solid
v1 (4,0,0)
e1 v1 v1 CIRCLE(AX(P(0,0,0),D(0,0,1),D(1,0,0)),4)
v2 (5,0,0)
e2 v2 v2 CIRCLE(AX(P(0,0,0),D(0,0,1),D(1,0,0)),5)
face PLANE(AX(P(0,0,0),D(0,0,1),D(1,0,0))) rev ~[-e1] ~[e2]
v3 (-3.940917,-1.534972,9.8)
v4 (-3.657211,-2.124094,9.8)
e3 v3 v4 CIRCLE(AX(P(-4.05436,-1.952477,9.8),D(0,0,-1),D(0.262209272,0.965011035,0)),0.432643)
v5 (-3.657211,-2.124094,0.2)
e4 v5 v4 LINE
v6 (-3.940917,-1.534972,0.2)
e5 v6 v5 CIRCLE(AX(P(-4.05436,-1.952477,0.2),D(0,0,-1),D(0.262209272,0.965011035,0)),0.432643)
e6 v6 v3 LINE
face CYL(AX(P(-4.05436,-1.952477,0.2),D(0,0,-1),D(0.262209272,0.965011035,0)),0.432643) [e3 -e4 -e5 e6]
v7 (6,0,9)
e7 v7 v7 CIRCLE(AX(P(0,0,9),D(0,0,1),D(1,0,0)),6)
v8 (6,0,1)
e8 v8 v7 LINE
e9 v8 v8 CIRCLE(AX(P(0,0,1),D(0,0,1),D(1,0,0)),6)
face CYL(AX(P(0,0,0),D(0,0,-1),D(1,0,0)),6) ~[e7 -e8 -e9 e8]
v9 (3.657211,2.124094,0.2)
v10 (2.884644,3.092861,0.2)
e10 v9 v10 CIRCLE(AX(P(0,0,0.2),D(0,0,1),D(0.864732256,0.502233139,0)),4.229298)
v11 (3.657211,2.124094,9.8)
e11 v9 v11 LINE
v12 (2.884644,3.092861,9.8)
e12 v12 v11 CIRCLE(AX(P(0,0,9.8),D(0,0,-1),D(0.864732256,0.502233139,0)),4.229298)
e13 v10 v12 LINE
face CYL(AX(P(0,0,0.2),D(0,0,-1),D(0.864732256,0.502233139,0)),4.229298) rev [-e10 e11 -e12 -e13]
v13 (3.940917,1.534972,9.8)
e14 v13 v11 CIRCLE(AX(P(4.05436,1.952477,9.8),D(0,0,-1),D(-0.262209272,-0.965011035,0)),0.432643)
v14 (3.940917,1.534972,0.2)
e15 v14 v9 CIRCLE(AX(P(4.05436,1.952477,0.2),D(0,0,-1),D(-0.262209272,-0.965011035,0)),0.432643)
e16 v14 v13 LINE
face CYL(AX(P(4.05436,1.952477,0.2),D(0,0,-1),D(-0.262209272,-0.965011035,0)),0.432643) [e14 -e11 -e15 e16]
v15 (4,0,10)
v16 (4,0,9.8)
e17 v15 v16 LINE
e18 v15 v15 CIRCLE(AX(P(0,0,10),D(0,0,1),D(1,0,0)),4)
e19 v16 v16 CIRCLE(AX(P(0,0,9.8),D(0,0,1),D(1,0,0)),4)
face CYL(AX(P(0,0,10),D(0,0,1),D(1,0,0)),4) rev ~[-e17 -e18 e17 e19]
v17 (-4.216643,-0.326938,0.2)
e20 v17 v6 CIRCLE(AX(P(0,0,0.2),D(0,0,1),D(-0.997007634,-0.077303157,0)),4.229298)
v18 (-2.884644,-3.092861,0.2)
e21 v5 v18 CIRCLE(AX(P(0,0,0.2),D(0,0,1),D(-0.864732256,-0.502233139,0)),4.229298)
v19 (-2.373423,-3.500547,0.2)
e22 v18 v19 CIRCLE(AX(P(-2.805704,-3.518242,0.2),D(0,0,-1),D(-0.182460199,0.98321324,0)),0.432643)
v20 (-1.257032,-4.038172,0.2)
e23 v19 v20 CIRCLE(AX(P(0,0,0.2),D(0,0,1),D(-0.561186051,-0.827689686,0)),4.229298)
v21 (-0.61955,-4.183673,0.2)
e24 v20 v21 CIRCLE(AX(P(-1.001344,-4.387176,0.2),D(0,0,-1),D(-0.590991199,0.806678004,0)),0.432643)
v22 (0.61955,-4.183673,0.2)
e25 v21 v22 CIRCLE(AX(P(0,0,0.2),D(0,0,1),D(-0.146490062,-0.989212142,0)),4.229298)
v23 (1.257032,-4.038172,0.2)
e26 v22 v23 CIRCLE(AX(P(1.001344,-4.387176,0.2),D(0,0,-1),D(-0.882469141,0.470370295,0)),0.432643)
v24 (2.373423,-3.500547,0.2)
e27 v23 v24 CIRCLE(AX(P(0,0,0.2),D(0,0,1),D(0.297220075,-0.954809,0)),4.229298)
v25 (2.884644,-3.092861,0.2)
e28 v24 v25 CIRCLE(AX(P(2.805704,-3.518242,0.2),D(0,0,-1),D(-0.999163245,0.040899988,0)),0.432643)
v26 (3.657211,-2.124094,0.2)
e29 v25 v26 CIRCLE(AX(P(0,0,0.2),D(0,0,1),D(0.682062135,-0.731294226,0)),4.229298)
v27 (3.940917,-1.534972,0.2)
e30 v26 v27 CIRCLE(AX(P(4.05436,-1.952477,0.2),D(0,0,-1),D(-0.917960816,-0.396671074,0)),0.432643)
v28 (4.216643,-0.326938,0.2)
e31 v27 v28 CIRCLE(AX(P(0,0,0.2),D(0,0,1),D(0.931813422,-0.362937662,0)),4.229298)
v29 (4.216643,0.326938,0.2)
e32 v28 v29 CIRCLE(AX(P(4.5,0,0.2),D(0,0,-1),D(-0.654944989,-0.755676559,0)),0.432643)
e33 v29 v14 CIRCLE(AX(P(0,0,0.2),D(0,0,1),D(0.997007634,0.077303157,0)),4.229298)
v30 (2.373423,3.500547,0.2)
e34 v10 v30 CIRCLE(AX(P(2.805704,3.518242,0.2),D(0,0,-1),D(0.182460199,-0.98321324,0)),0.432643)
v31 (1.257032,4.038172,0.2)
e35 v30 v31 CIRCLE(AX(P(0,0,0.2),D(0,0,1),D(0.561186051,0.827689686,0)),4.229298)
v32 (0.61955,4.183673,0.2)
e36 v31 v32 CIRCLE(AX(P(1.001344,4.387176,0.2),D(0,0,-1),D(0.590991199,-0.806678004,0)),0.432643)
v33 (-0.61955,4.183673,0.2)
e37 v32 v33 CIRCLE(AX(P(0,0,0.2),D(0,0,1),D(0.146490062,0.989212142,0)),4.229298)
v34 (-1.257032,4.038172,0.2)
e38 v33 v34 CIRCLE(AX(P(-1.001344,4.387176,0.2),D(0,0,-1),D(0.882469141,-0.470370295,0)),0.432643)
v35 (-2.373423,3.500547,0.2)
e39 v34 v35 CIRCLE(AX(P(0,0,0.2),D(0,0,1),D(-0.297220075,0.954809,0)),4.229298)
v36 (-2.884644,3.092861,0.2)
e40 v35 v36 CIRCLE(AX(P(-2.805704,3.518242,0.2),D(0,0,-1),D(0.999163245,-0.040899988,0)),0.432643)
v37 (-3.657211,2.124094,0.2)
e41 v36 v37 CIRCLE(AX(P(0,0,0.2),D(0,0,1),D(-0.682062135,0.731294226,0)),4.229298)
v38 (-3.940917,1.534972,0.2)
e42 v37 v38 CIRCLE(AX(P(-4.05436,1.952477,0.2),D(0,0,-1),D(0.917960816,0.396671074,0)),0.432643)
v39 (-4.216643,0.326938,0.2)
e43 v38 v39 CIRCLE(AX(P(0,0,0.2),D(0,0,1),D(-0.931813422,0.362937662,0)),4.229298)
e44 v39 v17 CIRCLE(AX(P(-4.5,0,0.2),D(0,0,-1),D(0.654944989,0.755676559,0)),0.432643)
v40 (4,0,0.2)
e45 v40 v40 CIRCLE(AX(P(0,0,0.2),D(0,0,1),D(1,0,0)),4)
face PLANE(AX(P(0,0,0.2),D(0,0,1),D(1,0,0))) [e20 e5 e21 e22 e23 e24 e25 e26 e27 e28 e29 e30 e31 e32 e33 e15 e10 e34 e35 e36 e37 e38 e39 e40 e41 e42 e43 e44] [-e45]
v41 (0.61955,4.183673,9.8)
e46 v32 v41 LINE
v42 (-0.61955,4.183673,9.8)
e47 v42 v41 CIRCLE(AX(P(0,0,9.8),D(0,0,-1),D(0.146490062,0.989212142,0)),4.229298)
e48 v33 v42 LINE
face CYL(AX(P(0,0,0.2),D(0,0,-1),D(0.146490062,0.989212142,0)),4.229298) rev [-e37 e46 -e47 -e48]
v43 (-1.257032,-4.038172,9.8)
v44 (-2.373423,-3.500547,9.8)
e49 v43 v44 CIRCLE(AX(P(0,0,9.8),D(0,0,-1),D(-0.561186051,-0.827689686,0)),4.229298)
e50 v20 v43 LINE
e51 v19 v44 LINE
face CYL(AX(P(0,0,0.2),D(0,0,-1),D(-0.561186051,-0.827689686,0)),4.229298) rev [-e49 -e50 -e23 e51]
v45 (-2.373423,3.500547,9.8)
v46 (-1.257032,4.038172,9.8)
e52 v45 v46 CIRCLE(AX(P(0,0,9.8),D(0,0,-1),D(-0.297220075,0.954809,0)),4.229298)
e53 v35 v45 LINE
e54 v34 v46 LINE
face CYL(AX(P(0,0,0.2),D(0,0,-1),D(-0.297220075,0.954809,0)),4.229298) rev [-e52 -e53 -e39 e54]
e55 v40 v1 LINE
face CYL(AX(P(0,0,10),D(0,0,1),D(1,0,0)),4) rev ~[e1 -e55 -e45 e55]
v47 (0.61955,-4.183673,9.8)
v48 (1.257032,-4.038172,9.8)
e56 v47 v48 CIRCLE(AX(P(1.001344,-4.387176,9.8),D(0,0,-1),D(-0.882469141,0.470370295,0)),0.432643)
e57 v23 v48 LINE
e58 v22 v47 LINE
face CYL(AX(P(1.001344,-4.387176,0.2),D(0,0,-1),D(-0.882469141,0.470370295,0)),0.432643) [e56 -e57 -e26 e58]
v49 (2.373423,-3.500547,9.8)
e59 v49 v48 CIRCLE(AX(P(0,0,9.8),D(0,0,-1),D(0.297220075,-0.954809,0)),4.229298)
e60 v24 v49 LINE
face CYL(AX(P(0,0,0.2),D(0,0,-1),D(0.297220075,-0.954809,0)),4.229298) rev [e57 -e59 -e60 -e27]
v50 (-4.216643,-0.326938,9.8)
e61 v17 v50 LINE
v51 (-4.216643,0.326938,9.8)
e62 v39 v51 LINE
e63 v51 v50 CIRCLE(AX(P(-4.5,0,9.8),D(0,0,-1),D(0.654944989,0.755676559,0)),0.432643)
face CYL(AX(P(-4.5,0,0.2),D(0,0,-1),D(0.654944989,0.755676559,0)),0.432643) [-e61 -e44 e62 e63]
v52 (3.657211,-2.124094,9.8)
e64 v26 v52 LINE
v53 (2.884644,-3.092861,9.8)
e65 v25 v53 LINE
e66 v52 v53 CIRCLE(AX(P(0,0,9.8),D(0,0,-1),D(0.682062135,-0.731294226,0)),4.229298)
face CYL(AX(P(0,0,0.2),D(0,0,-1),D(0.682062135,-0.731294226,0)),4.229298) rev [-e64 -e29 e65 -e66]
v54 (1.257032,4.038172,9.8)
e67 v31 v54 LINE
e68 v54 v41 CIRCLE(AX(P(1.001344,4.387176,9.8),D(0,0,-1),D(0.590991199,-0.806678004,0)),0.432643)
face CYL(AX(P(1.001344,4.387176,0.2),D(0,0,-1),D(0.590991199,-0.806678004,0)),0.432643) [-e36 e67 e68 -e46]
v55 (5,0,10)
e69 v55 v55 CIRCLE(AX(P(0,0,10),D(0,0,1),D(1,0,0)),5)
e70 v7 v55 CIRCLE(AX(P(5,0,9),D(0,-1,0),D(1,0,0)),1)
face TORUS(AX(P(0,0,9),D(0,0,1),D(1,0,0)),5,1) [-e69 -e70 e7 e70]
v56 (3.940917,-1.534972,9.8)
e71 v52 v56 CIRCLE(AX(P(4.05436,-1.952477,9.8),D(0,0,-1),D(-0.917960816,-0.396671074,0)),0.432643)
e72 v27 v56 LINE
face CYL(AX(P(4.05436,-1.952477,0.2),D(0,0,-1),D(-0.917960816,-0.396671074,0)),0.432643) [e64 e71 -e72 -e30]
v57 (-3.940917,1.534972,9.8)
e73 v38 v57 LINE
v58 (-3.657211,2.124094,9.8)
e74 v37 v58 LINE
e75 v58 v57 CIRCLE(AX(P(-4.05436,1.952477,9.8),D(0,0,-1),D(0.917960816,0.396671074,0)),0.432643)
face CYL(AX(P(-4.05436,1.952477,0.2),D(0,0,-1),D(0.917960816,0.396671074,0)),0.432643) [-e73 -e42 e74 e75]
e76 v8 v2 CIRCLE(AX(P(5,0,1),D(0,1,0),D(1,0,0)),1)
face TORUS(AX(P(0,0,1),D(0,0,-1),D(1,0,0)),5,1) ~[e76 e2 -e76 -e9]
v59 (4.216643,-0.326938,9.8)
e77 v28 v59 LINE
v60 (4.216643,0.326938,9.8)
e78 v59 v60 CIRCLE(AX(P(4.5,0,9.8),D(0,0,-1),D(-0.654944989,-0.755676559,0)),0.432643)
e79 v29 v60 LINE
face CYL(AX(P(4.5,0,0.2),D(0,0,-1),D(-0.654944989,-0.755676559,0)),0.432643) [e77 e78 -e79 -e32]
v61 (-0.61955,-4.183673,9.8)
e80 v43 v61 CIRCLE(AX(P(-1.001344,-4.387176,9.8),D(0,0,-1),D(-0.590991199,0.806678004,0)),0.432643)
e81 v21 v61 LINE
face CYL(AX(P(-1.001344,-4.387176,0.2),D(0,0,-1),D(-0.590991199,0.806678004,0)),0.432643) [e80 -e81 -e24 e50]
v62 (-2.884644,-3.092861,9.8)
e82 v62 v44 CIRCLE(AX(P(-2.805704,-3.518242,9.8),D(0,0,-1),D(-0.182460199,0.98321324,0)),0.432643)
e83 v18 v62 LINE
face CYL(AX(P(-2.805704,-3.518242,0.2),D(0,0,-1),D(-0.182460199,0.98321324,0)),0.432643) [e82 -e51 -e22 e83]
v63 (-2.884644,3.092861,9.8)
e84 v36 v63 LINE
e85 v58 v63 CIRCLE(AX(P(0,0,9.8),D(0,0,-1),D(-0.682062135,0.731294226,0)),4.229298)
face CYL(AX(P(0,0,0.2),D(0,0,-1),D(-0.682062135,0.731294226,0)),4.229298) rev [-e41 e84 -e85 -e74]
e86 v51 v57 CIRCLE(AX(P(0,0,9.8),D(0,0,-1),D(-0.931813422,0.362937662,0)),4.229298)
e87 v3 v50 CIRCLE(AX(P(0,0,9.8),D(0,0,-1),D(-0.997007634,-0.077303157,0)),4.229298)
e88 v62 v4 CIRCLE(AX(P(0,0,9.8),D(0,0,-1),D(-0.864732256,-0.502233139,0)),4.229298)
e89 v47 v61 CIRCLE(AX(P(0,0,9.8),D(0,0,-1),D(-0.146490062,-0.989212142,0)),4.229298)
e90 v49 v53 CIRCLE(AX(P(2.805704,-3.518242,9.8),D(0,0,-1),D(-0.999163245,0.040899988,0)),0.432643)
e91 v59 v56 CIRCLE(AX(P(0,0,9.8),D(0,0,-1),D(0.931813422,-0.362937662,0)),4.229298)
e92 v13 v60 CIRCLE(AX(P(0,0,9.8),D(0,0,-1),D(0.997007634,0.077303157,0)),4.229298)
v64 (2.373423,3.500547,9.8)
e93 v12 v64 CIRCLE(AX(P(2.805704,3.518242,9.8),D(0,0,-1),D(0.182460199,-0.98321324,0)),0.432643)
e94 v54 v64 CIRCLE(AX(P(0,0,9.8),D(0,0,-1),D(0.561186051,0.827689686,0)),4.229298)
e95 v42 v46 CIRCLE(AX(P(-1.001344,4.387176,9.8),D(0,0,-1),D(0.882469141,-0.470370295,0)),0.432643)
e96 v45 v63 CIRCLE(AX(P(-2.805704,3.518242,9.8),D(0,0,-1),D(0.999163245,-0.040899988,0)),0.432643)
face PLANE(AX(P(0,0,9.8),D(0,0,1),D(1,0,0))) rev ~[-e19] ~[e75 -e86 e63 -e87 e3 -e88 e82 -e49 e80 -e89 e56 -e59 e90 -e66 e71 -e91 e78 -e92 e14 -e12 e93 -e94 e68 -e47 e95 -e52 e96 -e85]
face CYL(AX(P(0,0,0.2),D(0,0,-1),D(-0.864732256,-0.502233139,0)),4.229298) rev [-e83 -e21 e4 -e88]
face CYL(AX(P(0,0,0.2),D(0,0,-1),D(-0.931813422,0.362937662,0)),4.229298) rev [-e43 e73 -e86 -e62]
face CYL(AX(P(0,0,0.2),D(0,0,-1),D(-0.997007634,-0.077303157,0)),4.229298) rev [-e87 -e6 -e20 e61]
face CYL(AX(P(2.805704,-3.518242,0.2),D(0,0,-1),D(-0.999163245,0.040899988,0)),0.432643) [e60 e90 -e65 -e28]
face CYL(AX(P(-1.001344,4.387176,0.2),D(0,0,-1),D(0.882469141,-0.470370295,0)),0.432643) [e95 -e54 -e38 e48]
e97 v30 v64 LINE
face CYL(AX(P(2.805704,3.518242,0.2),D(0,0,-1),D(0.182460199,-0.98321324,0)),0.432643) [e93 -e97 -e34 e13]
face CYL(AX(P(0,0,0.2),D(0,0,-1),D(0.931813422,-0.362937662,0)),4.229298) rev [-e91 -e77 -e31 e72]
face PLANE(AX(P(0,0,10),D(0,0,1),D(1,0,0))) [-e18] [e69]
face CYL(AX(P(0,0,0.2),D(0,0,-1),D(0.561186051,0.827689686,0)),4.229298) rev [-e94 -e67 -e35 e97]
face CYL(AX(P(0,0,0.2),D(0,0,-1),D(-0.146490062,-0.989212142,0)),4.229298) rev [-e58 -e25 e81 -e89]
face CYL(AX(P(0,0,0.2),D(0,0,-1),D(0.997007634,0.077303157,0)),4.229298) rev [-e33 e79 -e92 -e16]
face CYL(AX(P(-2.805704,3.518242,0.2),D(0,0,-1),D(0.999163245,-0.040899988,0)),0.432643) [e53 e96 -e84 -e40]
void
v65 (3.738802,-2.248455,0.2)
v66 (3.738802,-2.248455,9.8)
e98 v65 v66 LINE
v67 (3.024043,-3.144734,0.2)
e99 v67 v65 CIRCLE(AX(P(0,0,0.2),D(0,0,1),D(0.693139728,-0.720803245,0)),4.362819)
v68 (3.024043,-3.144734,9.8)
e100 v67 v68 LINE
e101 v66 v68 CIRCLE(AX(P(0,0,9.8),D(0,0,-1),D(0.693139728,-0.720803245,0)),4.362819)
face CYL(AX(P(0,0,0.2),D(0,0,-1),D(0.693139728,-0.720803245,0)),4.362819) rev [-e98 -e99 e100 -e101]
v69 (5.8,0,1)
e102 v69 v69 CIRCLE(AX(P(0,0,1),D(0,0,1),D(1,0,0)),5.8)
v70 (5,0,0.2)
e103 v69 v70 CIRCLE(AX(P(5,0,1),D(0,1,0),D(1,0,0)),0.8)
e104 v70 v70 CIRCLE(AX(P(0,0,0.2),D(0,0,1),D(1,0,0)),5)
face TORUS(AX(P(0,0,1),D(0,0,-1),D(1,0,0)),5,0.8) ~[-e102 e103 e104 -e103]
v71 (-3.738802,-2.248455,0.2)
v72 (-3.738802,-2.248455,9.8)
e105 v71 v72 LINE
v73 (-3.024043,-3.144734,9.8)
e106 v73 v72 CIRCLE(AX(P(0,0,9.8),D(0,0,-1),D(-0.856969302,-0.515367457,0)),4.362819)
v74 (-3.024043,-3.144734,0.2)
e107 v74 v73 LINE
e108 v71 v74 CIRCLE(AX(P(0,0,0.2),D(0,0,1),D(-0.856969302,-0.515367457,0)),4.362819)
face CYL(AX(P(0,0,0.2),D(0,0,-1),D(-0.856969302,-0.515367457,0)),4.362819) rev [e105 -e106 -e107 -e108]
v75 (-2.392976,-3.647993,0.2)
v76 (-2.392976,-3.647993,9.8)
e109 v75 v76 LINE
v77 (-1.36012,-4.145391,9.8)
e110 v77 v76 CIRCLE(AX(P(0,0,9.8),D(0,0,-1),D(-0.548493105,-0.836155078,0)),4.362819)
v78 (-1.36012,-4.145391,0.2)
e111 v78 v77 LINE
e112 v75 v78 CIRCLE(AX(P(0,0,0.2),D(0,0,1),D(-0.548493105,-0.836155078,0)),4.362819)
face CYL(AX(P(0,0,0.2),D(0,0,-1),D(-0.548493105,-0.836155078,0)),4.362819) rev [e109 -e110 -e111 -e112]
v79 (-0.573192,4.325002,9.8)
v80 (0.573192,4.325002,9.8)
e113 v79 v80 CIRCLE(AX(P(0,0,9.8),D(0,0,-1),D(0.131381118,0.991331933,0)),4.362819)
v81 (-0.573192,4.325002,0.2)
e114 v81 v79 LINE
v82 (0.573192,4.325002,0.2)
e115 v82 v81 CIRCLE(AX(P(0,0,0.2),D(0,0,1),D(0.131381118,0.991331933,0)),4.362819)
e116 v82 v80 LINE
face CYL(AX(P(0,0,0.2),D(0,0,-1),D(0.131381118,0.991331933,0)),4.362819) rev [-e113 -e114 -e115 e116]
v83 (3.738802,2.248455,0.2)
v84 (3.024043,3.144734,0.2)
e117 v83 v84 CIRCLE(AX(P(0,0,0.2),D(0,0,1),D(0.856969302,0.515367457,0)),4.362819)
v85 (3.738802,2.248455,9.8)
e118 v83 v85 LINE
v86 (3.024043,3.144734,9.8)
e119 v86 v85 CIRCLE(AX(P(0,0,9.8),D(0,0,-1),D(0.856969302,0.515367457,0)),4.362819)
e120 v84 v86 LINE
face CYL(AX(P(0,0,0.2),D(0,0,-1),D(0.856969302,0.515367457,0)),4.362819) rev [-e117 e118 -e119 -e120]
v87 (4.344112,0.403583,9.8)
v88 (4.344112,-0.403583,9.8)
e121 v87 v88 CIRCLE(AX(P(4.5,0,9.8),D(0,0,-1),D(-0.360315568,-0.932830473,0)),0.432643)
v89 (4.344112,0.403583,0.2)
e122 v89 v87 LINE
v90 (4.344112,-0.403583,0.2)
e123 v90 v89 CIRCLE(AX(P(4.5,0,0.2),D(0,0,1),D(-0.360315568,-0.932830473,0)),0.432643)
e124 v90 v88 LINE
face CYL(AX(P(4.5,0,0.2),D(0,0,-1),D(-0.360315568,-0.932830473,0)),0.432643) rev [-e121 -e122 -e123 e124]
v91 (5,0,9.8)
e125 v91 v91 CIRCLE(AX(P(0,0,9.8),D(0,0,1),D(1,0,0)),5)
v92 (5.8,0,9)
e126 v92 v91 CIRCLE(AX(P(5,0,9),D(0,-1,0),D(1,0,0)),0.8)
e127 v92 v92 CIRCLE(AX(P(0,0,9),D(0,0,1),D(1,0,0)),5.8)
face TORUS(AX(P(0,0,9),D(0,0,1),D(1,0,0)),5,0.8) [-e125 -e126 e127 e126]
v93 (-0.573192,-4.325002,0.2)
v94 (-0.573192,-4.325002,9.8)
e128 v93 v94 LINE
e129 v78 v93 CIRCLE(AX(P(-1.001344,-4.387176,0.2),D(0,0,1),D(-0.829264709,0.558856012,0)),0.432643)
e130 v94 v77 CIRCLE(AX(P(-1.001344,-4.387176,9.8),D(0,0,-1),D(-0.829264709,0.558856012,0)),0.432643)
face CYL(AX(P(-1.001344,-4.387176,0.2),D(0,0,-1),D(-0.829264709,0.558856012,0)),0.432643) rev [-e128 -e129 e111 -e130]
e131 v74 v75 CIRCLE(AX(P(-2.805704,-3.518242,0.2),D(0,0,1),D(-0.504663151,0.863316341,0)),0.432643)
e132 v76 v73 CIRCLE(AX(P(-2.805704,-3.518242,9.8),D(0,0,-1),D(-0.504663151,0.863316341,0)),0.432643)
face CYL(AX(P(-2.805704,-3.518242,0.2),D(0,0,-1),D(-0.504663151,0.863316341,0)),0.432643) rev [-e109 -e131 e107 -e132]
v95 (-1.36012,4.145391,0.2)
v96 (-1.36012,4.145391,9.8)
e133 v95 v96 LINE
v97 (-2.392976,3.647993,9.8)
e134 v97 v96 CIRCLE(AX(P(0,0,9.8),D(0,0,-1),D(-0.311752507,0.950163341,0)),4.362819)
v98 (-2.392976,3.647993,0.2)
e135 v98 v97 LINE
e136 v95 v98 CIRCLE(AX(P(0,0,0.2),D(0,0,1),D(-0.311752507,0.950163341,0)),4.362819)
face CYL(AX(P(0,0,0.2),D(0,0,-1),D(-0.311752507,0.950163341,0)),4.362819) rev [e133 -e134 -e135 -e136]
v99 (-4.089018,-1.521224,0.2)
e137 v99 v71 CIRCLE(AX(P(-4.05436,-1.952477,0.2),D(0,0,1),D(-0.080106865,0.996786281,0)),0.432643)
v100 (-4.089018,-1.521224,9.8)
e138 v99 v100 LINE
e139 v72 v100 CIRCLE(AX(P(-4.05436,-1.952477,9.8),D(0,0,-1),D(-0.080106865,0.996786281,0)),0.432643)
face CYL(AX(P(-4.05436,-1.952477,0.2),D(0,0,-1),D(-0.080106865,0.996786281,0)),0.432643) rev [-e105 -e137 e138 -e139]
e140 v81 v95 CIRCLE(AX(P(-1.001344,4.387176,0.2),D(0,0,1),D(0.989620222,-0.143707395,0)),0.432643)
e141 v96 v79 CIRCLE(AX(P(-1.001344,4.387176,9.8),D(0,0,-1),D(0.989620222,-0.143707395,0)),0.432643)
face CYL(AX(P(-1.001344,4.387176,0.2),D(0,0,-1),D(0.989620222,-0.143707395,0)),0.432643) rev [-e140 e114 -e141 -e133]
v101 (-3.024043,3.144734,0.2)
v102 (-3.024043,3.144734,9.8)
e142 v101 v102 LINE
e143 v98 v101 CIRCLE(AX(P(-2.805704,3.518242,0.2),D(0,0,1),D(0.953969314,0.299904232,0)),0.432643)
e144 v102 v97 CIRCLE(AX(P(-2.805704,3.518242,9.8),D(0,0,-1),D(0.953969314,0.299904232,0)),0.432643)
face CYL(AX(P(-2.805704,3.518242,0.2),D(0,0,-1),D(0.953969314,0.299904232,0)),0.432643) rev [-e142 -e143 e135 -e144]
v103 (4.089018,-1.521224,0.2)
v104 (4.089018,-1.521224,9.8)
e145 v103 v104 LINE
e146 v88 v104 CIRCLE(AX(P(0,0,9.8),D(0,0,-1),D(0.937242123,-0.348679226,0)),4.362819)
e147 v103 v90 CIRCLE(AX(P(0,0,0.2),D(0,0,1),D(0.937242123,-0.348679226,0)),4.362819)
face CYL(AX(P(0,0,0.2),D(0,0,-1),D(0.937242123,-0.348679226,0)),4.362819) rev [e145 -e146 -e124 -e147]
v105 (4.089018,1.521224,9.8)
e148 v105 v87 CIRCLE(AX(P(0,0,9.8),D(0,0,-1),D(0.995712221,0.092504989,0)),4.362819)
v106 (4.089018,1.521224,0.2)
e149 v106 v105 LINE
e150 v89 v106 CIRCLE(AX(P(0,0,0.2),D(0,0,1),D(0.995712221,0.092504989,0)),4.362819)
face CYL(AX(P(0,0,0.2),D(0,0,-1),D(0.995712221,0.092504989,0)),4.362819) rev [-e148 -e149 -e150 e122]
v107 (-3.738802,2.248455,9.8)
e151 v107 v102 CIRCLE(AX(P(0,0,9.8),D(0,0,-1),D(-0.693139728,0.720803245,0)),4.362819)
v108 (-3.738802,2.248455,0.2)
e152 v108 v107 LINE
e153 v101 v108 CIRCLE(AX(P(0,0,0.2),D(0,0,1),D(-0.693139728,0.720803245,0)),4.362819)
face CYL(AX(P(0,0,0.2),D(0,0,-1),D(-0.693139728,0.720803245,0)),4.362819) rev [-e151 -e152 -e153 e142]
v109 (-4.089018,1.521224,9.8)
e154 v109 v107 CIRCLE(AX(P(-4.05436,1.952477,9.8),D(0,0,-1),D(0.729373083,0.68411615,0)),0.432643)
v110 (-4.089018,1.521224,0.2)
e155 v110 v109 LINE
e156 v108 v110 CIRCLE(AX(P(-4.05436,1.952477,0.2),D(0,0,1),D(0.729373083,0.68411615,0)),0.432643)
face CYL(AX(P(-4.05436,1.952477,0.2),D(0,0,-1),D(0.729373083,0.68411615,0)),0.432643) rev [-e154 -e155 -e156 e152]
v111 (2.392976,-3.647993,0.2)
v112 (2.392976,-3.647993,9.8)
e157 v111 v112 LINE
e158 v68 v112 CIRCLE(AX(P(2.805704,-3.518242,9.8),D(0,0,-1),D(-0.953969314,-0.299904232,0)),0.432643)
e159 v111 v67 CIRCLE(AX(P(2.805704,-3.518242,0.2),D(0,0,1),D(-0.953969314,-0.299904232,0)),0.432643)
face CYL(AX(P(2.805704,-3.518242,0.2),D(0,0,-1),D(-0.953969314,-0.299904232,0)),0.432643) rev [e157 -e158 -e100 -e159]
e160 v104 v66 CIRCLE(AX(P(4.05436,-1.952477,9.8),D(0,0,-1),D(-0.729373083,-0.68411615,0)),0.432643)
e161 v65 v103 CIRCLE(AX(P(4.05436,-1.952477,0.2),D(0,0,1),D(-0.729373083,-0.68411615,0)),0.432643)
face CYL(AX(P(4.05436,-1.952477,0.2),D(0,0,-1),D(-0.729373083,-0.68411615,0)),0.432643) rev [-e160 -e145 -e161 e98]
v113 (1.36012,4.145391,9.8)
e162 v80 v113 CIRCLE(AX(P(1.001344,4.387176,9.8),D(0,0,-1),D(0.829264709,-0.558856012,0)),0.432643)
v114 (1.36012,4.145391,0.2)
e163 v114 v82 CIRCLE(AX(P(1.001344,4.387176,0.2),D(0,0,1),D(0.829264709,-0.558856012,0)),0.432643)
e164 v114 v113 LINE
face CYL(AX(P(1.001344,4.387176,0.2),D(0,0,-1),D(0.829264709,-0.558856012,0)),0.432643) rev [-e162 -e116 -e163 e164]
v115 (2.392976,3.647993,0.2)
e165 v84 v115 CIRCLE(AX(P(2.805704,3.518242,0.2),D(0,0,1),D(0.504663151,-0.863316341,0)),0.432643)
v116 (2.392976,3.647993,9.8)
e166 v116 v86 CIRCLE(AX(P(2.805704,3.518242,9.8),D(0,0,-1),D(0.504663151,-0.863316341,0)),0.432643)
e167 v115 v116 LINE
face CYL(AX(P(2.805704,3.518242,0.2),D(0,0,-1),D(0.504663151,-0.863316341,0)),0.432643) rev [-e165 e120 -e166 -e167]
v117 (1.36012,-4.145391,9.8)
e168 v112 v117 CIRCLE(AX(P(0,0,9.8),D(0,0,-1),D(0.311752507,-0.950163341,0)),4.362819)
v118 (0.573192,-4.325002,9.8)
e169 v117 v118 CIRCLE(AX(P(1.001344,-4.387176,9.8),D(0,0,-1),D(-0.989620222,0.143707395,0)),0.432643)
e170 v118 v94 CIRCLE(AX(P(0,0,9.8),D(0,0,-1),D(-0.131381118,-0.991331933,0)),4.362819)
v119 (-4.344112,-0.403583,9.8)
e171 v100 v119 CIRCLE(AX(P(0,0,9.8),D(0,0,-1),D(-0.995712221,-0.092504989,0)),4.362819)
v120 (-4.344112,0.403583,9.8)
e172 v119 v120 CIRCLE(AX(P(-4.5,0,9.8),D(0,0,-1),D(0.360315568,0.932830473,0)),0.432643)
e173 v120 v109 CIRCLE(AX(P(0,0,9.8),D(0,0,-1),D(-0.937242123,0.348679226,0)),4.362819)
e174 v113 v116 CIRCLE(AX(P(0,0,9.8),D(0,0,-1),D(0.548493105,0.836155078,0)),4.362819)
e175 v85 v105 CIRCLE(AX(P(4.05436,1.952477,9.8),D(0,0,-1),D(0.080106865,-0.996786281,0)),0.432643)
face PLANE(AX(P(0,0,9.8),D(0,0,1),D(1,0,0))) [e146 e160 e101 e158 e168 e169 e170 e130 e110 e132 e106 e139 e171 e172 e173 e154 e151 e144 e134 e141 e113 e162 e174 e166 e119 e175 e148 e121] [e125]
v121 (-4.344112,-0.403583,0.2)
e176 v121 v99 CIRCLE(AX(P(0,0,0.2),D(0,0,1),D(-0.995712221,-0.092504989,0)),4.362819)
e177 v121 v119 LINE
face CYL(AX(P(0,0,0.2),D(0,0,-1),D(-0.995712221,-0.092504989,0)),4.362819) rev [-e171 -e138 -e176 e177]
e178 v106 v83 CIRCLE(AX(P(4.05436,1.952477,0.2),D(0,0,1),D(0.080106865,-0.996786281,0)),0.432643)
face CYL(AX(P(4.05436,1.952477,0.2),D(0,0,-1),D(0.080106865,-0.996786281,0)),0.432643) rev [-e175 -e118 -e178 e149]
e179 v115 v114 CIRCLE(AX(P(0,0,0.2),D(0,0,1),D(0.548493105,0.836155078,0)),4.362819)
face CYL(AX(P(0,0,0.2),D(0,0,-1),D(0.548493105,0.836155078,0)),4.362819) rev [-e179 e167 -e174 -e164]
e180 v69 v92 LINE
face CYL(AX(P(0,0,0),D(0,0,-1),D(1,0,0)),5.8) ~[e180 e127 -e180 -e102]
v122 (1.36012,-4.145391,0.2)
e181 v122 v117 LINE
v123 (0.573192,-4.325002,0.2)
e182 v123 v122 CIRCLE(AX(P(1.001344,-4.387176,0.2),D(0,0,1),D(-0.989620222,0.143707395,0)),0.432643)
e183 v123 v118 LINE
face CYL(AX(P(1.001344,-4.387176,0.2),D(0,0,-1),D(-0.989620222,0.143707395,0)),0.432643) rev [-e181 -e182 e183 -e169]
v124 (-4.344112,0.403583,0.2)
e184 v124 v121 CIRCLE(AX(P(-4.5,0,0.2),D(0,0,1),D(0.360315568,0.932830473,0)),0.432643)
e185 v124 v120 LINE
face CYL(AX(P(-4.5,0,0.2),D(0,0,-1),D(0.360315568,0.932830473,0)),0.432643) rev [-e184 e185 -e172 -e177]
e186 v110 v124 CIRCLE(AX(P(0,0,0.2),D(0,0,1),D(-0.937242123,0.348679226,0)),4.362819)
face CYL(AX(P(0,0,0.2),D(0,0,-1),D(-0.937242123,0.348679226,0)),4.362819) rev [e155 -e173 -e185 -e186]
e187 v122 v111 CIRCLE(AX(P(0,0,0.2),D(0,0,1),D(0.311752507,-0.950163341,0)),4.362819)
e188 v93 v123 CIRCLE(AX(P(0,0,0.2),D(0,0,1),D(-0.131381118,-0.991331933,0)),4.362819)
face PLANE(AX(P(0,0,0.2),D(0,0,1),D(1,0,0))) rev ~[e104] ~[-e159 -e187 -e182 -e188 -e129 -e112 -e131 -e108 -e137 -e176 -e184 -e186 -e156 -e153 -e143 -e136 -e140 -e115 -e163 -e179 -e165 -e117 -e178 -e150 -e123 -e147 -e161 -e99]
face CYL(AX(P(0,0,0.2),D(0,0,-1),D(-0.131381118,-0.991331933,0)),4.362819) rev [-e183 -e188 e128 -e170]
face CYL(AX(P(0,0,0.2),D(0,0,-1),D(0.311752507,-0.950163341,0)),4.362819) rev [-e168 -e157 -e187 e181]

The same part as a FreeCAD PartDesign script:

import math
import FreeCAD as App
import Part
import Sketcher

V = App.Vector
Q = App.Units.Quantity


def edges_at(feature, points):
    """Names of the edges that pass closest to the given points."""
    edges = feature.Shape.Edges
    near = lambda p: min(range(len(edges)), key=lambda i: edges[i].distToShape(Part.Vertex(*p))[0])
    return sorted({f"Edge{near(p) + 1}" for p in points})


def faces_at(feature, points):
    """Names of the faces that lie closest to the given points."""
    faces = feature.Shape.Faces
    near = lambda p: min(range(len(faces)), key=lambda i: faces[i].distToShape(Part.Vertex(*p))[0])
    return sorted({f"Face{near(p) + 1}" for p in points})

doc = App.newDocument("Part")
params = doc.addObject("Spreadsheet::Sheet", "Params")
for row, (alias, value) in enumerate([
    ("sketch1_diameter", "12 mm"),
    ("pad1_length", "10 mm"),
    ("fillet_radius", "1 mm"),
    ("sketch2_diameter", "8 mm"),
    ("thickness_wall", "0.2 mm"),
    ("pad2_length", "9.6 mm"),
], start=1):
    params.set(f"A{row}", alias)
    params.set(f"B{row}", "=" + value)
    params.setAlias(f"B{row}", alias)

body = doc.addObject("PartDesign::Body", "Body")

sketch1 = body.newObject("Sketcher::SketchObject", "Sketch")
sketch1.AttachmentSupport = (doc.getObject("XY_Plane"), [""])
sketch1.MapMode = "FlatFace"
sketch1.addGeometry(Part.Circle(V(0, 0, 0), V(0, 0, 1), 6), False)
sketch1.addConstraint(Sketcher.Constraint("Coincident", 0, 3, -1, 1))
sketch1.addConstraint(Sketcher.Constraint("Diameter", 0, Q("12 mm")))
sketch1.setExpression("Constraints[1]", "Params.sketch1_diameter")
pad1 = body.newObject("PartDesign::Pad", "Pad")
pad1.Profile = sketch1
pad1.setExpression("Length", "Params.pad1_length")
doc.recompute()

fillet = body.newObject("PartDesign::Fillet", "Fillet")
fillet.Base = (pad1, edges_at(pad1, [(-6, 0, 0), (-6, 0, 10)]))
fillet.setExpression("Radius", "Params.fillet_radius")

sketch2 = body.newObject("Sketcher::SketchObject", "Sketch001")
sketch2.AttachmentSupport = (doc.getObject("XY_Plane"), [""])
sketch2.MapMode = "FlatFace"
sketch2.AttachmentOffset = App.Placement(V(0, 0, 10), App.Rotation())
sketch2.addGeometry(Part.Circle(V(0, 0, 0), V(0, 0, 1), 4), False)
sketch2.addConstraint(Sketcher.Constraint("Coincident", 0, 3, -1, 1))
sketch2.addConstraint(Sketcher.Constraint("Diameter", 0, Q("8 mm")))
sketch2.setExpression("Constraints[1]", "Params.sketch2_diameter")
pocket1 = body.newObject("PartDesign::Pocket", "Pocket")
pocket1.Profile = sketch2
pocket1.Type = "ThroughAll"
doc.recompute()

thickness = body.newObject("PartDesign::Thickness", "Thickness")
thickness.Base = (pocket1, faces_at(pocket1, [(-4, 0, 5)]))
thickness.setExpression("Value", "Params.thickness_wall")
thickness.Reversed = True
thickness.Join = "Intersection"

sketch3 = body.newObject("Sketcher::SketchObject", "Sketch002")
sketch3.AttachmentSupport = (doc.getObject("XY_Plane"), [""])
sketch3.MapMode = "FlatFace"
sketch3.AttachmentOffset = App.Placement(V(0, 0, 0.2), App.Rotation())
sketch3.addGeometry(Part.ArcOfCircle(Part.Circle(V(0, 0, 0), V(0, 0, 1), 4.362819), math.radians(159.593448), math.radians(174.692266)), False)
sketch3.addGeometry(Part.ArcOfCircle(Part.Circle(V(-4.5, 0, 0), V(0, 0, 1), 0.432643), math.radians(68.880423), math.radians(291.119577)), False)
sketch3.addGeometry(Part.ArcOfCircle(Part.Circle(V(0, 0, 0), V(0, 0, 1), 4.362819), math.radians(-174.692266), math.radians(-159.593448)), False)
sketch3.addGeometry(Part.ArcOfCircle(Part.Circle(V(-4.05436, -1.952477, 0), V(0, 0, 1), 0.432643), math.radians(94.594708), math.radians(316.833863)), False)
sketch3.addGeometry(Part.ArcOfCircle(Part.Circle(V(0, 0, 0), V(0, 0, 1), 4.362819), math.radians(-148.977981), math.radians(-133.879162)), False)
sketch3.addGeometry(Part.ArcOfCircle(Part.Circle(V(-2.805704, -3.518242, 0), V(0, 0, 1), 0.432643), math.radians(120.308994), math.radians(342.548149)), False)
sketch3.addGeometry(Part.ArcOfCircle(Part.Circle(V(0, 0, 0), V(0, 0, 1), 4.362819), math.radians(-123.263695), math.radians(-108.164877)), False)
sketch3.addGeometry(Part.ArcOfCircle(Part.Circle(V(-1.001344, -4.387176, 0), V(0, 0, 1), 0.432643), math.radians(146.02328), math.radians(368.262434)), False)
sketch3.addGeometry(Part.ArcOfCircle(Part.Circle(V(0, 0, 0), V(0, 0, 1), 4.362819), math.radians(-97.549409), math.radians(-82.450591)), False)
sketch3.addGeometry(Part.ArcOfCircle(Part.Circle(V(1.001344, -4.387176, 0), V(0, 0, 1), 0.432643), math.radians(171.737566), math.radians(393.97672)), False)
sketch3.addGeometry(Part.ArcOfCircle(Part.Circle(V(0, 0, 0), V(0, 0, 1), 4.362819), math.radians(-71.835123), math.radians(-56.736305)), False)
sketch3.addGeometry(Part.ArcOfCircle(Part.Circle(V(2.805704, -3.518242, 0), V(0, 0, 1), 0.432643), math.radians(-162.548149), math.radians(59.691006)), False)
sketch3.addGeometry(Part.ArcOfCircle(Part.Circle(V(0, 0, 0), V(0, 0, 1), 4.362819), math.radians(-46.120838), math.radians(-31.022019)), False)
sketch3.addGeometry(Part.ArcOfCircle(Part.Circle(V(4.05436, -1.952477, 0), V(0, 0, 1), 0.432643), math.radians(-136.833863), math.radians(85.405292)), False)
sketch3.addGeometry(Part.ArcOfCircle(Part.Circle(V(0, 0, 0), V(0, 0, 1), 4.362819), math.radians(-20.406552), math.radians(-5.307734)), False)
sketch3.addGeometry(Part.ArcOfCircle(Part.Circle(V(4.5, 0, 0), V(0, 0, 1), 0.432643), math.radians(-111.119577), math.radians(111.119577)), False)
sketch3.addGeometry(Part.ArcOfCircle(Part.Circle(V(0, 0, 0), V(0, 0, 1), 4.362819), math.radians(5.307734), math.radians(20.406552)), False)
sketch3.addGeometry(Part.ArcOfCircle(Part.Circle(V(4.05436, 1.952477, 0), V(0, 0, 1), 0.432643), math.radians(-85.405292), math.radians(136.833863)), False)
sketch3.addGeometry(Part.ArcOfCircle(Part.Circle(V(0, 0, 0), V(0, 0, 1), 4.362819), math.radians(31.022019), math.radians(46.120838)), False)
sketch3.addGeometry(Part.ArcOfCircle(Part.Circle(V(2.805704, 3.518242, 0), V(0, 0, 1), 0.432643), math.radians(-59.691006), math.radians(162.548149)), False)
sketch3.addGeometry(Part.ArcOfCircle(Part.Circle(V(0, 0, 0), V(0, 0, 1), 4.362819), math.radians(56.736305), math.radians(71.835123)), False)
sketch3.addGeometry(Part.ArcOfCircle(Part.Circle(V(1.001344, 4.387176, 0), V(0, 0, 1), 0.432643), math.radians(-33.97672), math.radians(188.262434)), False)
sketch3.addGeometry(Part.ArcOfCircle(Part.Circle(V(0, 0, 0), V(0, 0, 1), 4.362819), math.radians(82.450591), math.radians(97.549409)), False)
sketch3.addGeometry(Part.ArcOfCircle(Part.Circle(V(-1.001344, 4.387176, 0), V(0, 0, 1), 0.432643), math.radians(-8.262434), math.radians(213.97672)), False)
sketch3.addGeometry(Part.ArcOfCircle(Part.Circle(V(0, 0, 0), V(0, 0, 1), 4.362819), math.radians(108.164877), math.radians(123.263695)), False)
sketch3.addGeometry(Part.ArcOfCircle(Part.Circle(V(-2.805704, 3.518242, 0), V(0, 0, 1), 0.432643), math.radians(17.451851), math.radians(239.691006)), False)
sketch3.addGeometry(Part.ArcOfCircle(Part.Circle(V(0, 0, 0), V(0, 0, 1), 4.362819), math.radians(133.879162), math.radians(148.977981)), False)
sketch3.addGeometry(Part.ArcOfCircle(Part.Circle(V(-4.05436, 1.952477, 0), V(0, 0, 1), 0.432643), math.radians(43.166137), math.radians(265.405292)), False)
sketch3.addGeometry(Part.ArcOfCircle(Part.Circle(V(0, 0, 0), V(0, 0, 1), 4.229298), math.radians(158.719282), math.radians(175.566432)), False)
sketch3.addGeometry(Part.ArcOfCircle(Part.Circle(V(-4.05436, 1.952477, 0), V(0, 0, 1), 0.432643), math.radians(-74.798807), math.radians(23.370235)), False)
sketch3.addGeometry(Part.ArcOfCircle(Part.Circle(V(0, 0, 0), V(0, 0, 1), 4.229298), math.radians(133.004996), math.radians(149.852146)), False)
sketch3.addGeometry(Part.ArcOfCircle(Part.Circle(V(-2.805704, 3.518242, 0), V(0, 0, 1), 0.432643), math.radians(-100.513092), math.radians(-2.344051)), False)
sketch3.addGeometry(Part.ArcOfCircle(Part.Circle(V(0, 0, 0), V(0, 0, 1), 4.229298), math.radians(107.290711), math.radians(124.137861)), False)
sketch3.addGeometry(Part.ArcOfCircle(Part.Circle(V(-1.001344, 4.387176, 0), V(0, 0, 1), 0.432643), math.radians(-126.227378), math.radians(-28.058336)), False)
sketch3.addGeometry(Part.ArcOfCircle(Part.Circle(V(0, 0, 0), V(0, 0, 1), 4.229298), math.radians(81.576425), math.radians(98.423575)), False)
sketch3.addGeometry(Part.ArcOfCircle(Part.Circle(V(1.001344, 4.387176, 0), V(0, 0, 1), 0.432643), math.radians(-151.941664), math.radians(-53.772622)), False)
sketch3.addGeometry(Part.ArcOfCircle(Part.Circle(V(0, 0, 0), V(0, 0, 1), 4.229298), math.radians(55.862139), math.radians(72.709289)), False)
sketch3.addGeometry(Part.ArcOfCircle(Part.Circle(V(2.805704, 3.518242, 0), V(0, 0, 1), 0.432643), math.radians(-177.655949), math.radians(-79.486908)), False)
sketch3.addGeometry(Part.ArcOfCircle(Part.Circle(V(0, 0, 0), V(0, 0, 1), 4.229298), math.radians(30.147854), math.radians(46.995004)), False)
sketch3.addGeometry(Part.ArcOfCircle(Part.Circle(V(4.05436, 1.952477, 0), V(0, 0, 1), 0.432643), math.radians(156.629765), math.radians(254.798807)), False)
sketch3.addGeometry(Part.ArcOfCircle(Part.Circle(V(0, 0, 0), V(0, 0, 1), 4.229298), math.radians(4.433568), math.radians(21.280718)), False)
sketch3.addGeometry(Part.ArcOfCircle(Part.Circle(V(4.5, 0, 0), V(0, 0, 1), 0.432643), math.radians(130.915479), math.radians(229.084521)), False)
sketch3.addGeometry(Part.ArcOfCircle(Part.Circle(V(0, 0, 0), V(0, 0, 1), 4.229298), math.radians(-21.280718), math.radians(-4.433568)), False)
sketch3.addGeometry(Part.ArcOfCircle(Part.Circle(V(4.05436, -1.952477, 0), V(0, 0, 1), 0.432643), math.radians(105.201193), math.radians(203.370235)), False)
sketch3.addGeometry(Part.ArcOfCircle(Part.Circle(V(0, 0, 0), V(0, 0, 1), 4.229298), math.radians(-46.995004), math.radians(-30.147854)), False)
sketch3.addGeometry(Part.ArcOfCircle(Part.Circle(V(2.805704, -3.518242, 0), V(0, 0, 1), 0.432643), math.radians(79.486908), math.radians(177.655949)), False)
sketch3.addGeometry(Part.ArcOfCircle(Part.Circle(V(0, 0, 0), V(0, 0, 1), 4.229298), math.radians(-72.709289), math.radians(-55.862139)), False)
sketch3.addGeometry(Part.ArcOfCircle(Part.Circle(V(1.001344, -4.387176, 0), V(0, 0, 1), 0.432643), math.radians(53.772622), math.radians(151.941664)), False)
sketch3.addGeometry(Part.ArcOfCircle(Part.Circle(V(0, 0, 0), V(0, 0, 1), 4.229298), math.radians(-98.423575), math.radians(-81.576425)), False)
sketch3.addGeometry(Part.ArcOfCircle(Part.Circle(V(-1.001344, -4.387176, 0), V(0, 0, 1), 0.432643), math.radians(28.058336), math.radians(126.227378)), False)
sketch3.addGeometry(Part.ArcOfCircle(Part.Circle(V(0, 0, 0), V(0, 0, 1), 4.229298), math.radians(-124.137861), math.radians(-107.290711)), False)
sketch3.addGeometry(Part.ArcOfCircle(Part.Circle(V(-2.805704, -3.518242, 0), V(0, 0, 1), 0.432643), math.radians(2.344051), math.radians(100.513092)), False)
sketch3.addGeometry(Part.ArcOfCircle(Part.Circle(V(0, 0, 0), V(0, 0, 1), 4.229298), math.radians(-149.852146), math.radians(-133.004996)), False)
sketch3.addGeometry(Part.ArcOfCircle(Part.Circle(V(-4.05436, -1.952477, 0), V(0, 0, 1), 0.432643), math.radians(-23.370235), math.radians(74.798807)), False)
sketch3.addGeometry(Part.ArcOfCircle(Part.Circle(V(0, 0, 0), V(0, 0, 1), 4.229298), math.radians(-175.566432), math.radians(-158.719282)), False)
sketch3.addGeometry(Part.ArcOfCircle(Part.Circle(V(-4.5, 0, 0), V(0, 0, 1), 0.432643), math.radians(-49.084521), math.radians(49.084521)), False)
sketch3.addConstraint(Sketcher.Constraint("Coincident", 0, 2, 1, 1))
sketch3.addConstraint(Sketcher.Constraint("Coincident", 1, 2, 2, 1))
sketch3.addConstraint(Sketcher.Constraint("Coincident", 2, 2, 3, 1))
sketch3.addConstraint(Sketcher.Constraint("Coincident", 3, 2, 4, 1))
sketch3.addConstraint(Sketcher.Constraint("Coincident", 4, 2, 5, 1))
sketch3.addConstraint(Sketcher.Constraint("Coincident", 5, 2, 6, 1))
sketch3.addConstraint(Sketcher.Constraint("Coincident", 6, 2, 7, 1))
sketch3.addConstraint(Sketcher.Constraint("Coincident", 7, 2, 8, 1))
sketch3.addConstraint(Sketcher.Constraint("Coincident", 8, 2, 9, 1))
sketch3.addConstraint(Sketcher.Constraint("Coincident", 9, 2, 10, 1))
sketch3.addConstraint(Sketcher.Constraint("Coincident", 10, 2, 11, 1))
sketch3.addConstraint(Sketcher.Constraint("Coincident", 11, 2, 12, 1))
sketch3.addConstraint(Sketcher.Constraint("Coincident", 12, 2, 13, 1))
sketch3.addConstraint(Sketcher.Constraint("Coincident", 13, 2, 14, 1))
sketch3.addConstraint(Sketcher.Constraint("Coincident", 14, 2, 15, 1))
sketch3.addConstraint(Sketcher.Constraint("Coincident", 15, 2, 16, 1))
sketch3.addConstraint(Sketcher.Constraint("Coincident", 16, 2, 17, 1))
sketch3.addConstraint(Sketcher.Constraint("Coincident", 17, 2, 18, 1))
sketch3.addConstraint(Sketcher.Constraint("Coincident", 18, 2, 19, 1))
sketch3.addConstraint(Sketcher.Constraint("Coincident", 19, 2, 20, 1))
sketch3.addConstraint(Sketcher.Constraint("Coincident", 20, 2, 21, 1))
sketch3.addConstraint(Sketcher.Constraint("Coincident", 21, 2, 22, 1))
sketch3.addConstraint(Sketcher.Constraint("Coincident", 22, 2, 23, 1))
sketch3.addConstraint(Sketcher.Constraint("Coincident", 23, 2, 24, 1))
sketch3.addConstraint(Sketcher.Constraint("Coincident", 24, 2, 25, 1))
sketch3.addConstraint(Sketcher.Constraint("Coincident", 25, 2, 26, 1))
sketch3.addConstraint(Sketcher.Constraint("Coincident", 26, 2, 27, 1))
sketch3.addConstraint(Sketcher.Constraint("Coincident", 27, 2, 0, 1))
sketch3.addConstraint(Sketcher.Constraint("Coincident", 28, 1, 29, 1))
sketch3.addConstraint(Sketcher.Constraint("Coincident", 29, 2, 30, 2))
sketch3.addConstraint(Sketcher.Constraint("Coincident", 30, 1, 31, 1))
sketch3.addConstraint(Sketcher.Constraint("Coincident", 31, 2, 32, 2))
sketch3.addConstraint(Sketcher.Constraint("Coincident", 32, 1, 33, 1))
sketch3.addConstraint(Sketcher.Constraint("Coincident", 33, 2, 34, 2))
sketch3.addConstraint(Sketcher.Constraint("Coincident", 34, 1, 35, 1))
sketch3.addConstraint(Sketcher.Constraint("Coincident", 35, 2, 36, 2))
sketch3.addConstraint(Sketcher.Constraint("Coincident", 36, 1, 37, 1))
sketch3.addConstraint(Sketcher.Constraint("Coincident", 37, 2, 38, 2))
sketch3.addConstraint(Sketcher.Constraint("Coincident", 38, 1, 39, 1))
sketch3.addConstraint(Sketcher.Constraint("Coincident", 39, 2, 40, 2))
sketch3.addConstraint(Sketcher.Constraint("Coincident", 40, 1, 41, 1))
sketch3.addConstraint(Sketcher.Constraint("Coincident", 41, 2, 42, 2))
sketch3.addConstraint(Sketcher.Constraint("Coincident", 42, 1, 43, 1))
sketch3.addConstraint(Sketcher.Constraint("Coincident", 43, 2, 44, 2))
sketch3.addConstraint(Sketcher.Constraint("Coincident", 44, 1, 45, 1))
sketch3.addConstraint(Sketcher.Constraint("Coincident", 45, 2, 46, 2))
sketch3.addConstraint(Sketcher.Constraint("Coincident", 46, 1, 47, 1))
sketch3.addConstraint(Sketcher.Constraint("Coincident", 47, 2, 48, 2))
sketch3.addConstraint(Sketcher.Constraint("Coincident", 48, 1, 49, 1))
sketch3.addConstraint(Sketcher.Constraint("Coincident", 49, 2, 50, 2))
sketch3.addConstraint(Sketcher.Constraint("Coincident", 50, 1, 51, 1))
sketch3.addConstraint(Sketcher.Constraint("Coincident", 51, 2, 52, 2))
sketch3.addConstraint(Sketcher.Constraint("Coincident", 52, 1, 53, 1))
sketch3.addConstraint(Sketcher.Constraint("Coincident", 53, 2, 54, 2))
sketch3.addConstraint(Sketcher.Constraint("Coincident", 54, 1, 55, 1))
sketch3.addConstraint(Sketcher.Constraint("Coincident", 55, 2, 28, 2))
sketch3.addConstraint(Sketcher.Constraint("Coincident", 0, 3, -1, 1))
sketch3.addConstraint(Sketcher.Constraint("Coincident", 2, 3, -1, 1))
sketch3.addConstraint(Sketcher.Constraint("Coincident", 4, 3, -1, 1))
sketch3.addConstraint(Sketcher.Constraint("Coincident", 6, 3, -1, 1))
sketch3.addConstraint(Sketcher.Constraint("Coincident", 8, 3, -1, 1))
sketch3.addConstraint(Sketcher.Constraint("Coincident", 10, 3, -1, 1))
sketch3.addConstraint(Sketcher.Constraint("Coincident", 12, 3, -1, 1))
sketch3.addConstraint(Sketcher.Constraint("Coincident", 14, 3, -1, 1))
sketch3.addConstraint(Sketcher.Constraint("Coincident", 16, 3, -1, 1))
sketch3.addConstraint(Sketcher.Constraint("Coincident", 18, 3, -1, 1))
sketch3.addConstraint(Sketcher.Constraint("Coincident", 20, 3, -1, 1))
sketch3.addConstraint(Sketcher.Constraint("Coincident", 22, 3, -1, 1))
sketch3.addConstraint(Sketcher.Constraint("Coincident", 24, 3, -1, 1))
sketch3.addConstraint(Sketcher.Constraint("Coincident", 26, 3, -1, 1))
sketch3.addConstraint(Sketcher.Constraint("Coincident", 28, 3, -1, 1))
sketch3.addConstraint(Sketcher.Constraint("Coincident", 30, 3, -1, 1))
sketch3.addConstraint(Sketcher.Constraint("Coincident", 32, 3, -1, 1))
sketch3.addConstraint(Sketcher.Constraint("Coincident", 34, 3, -1, 1))
sketch3.addConstraint(Sketcher.Constraint("Coincident", 36, 3, -1, 1))
sketch3.addConstraint(Sketcher.Constraint("Coincident", 38, 3, -1, 1))
sketch3.addConstraint(Sketcher.Constraint("Coincident", 40, 3, -1, 1))
sketch3.addConstraint(Sketcher.Constraint("Coincident", 42, 3, -1, 1))
sketch3.addConstraint(Sketcher.Constraint("Coincident", 44, 3, -1, 1))
sketch3.addConstraint(Sketcher.Constraint("Coincident", 46, 3, -1, 1))
sketch3.addConstraint(Sketcher.Constraint("Coincident", 48, 3, -1, 1))
sketch3.addConstraint(Sketcher.Constraint("Coincident", 50, 3, -1, 1))
sketch3.addConstraint(Sketcher.Constraint("Coincident", 52, 3, -1, 1))
sketch3.addConstraint(Sketcher.Constraint("Coincident", 54, 3, -1, 1))
sketch3.addConstraint(Sketcher.Constraint("Coincident", 29, 3, 27, 3))
sketch3.addConstraint(Sketcher.Constraint("Coincident", 31, 3, 25, 3))
sketch3.addConstraint(Sketcher.Constraint("Coincident", 33, 3, 23, 3))
sketch3.addConstraint(Sketcher.Constraint("Coincident", 35, 3, 21, 3))
sketch3.addConstraint(Sketcher.Constraint("Coincident", 37, 3, 19, 3))
sketch3.addConstraint(Sketcher.Constraint("Coincident", 39, 3, 17, 3))
sketch3.addConstraint(Sketcher.Constraint("Coincident", 41, 3, 15, 3))
sketch3.addConstraint(Sketcher.Constraint("Coincident", 43, 3, 13, 3))
sketch3.addConstraint(Sketcher.Constraint("Coincident", 45, 3, 11, 3))
sketch3.addConstraint(Sketcher.Constraint("Coincident", 47, 3, 9, 3))
sketch3.addConstraint(Sketcher.Constraint("Coincident", 49, 3, 7, 3))
sketch3.addConstraint(Sketcher.Constraint("Coincident", 51, 3, 5, 3))
sketch3.addConstraint(Sketcher.Constraint("Coincident", 53, 3, 3, 3))
sketch3.addConstraint(Sketcher.Constraint("Coincident", 55, 3, 1, 3))
sketch3.addConstraint(Sketcher.Constraint("Equal", 0, 2))
sketch3.addConstraint(Sketcher.Constraint("Equal", 1, 3))
sketch3.addConstraint(Sketcher.Constraint("Equal", 2, 4))
sketch3.addConstraint(Sketcher.Constraint("Equal", 3, 5))
sketch3.addConstraint(Sketcher.Constraint("Equal", 4, 6))
sketch3.addConstraint(Sketcher.Constraint("Equal", 5, 7))
sketch3.addConstraint(Sketcher.Constraint("Equal", 6, 8))
sketch3.addConstraint(Sketcher.Constraint("Equal", 7, 9))
sketch3.addConstraint(Sketcher.Constraint("Equal", 8, 10))
sketch3.addConstraint(Sketcher.Constraint("Equal", 9, 11))
sketch3.addConstraint(Sketcher.Constraint("Equal", 10, 12))
sketch3.addConstraint(Sketcher.Constraint("Equal", 11, 13))
sketch3.addConstraint(Sketcher.Constraint("Equal", 12, 14))
sketch3.addConstraint(Sketcher.Constraint("Equal", 13, 15))
sketch3.addConstraint(Sketcher.Constraint("Equal", 14, 16))
sketch3.addConstraint(Sketcher.Constraint("Equal", 15, 17))
sketch3.addConstraint(Sketcher.Constraint("Equal", 16, 18))
sketch3.addConstraint(Sketcher.Constraint("Equal", 17, 19))
sketch3.addConstraint(Sketcher.Constraint("Equal", 18, 20))
sketch3.addConstraint(Sketcher.Constraint("Equal", 19, 21))
sketch3.addConstraint(Sketcher.Constraint("Equal", 20, 22))
sketch3.addConstraint(Sketcher.Constraint("Equal", 21, 23))
sketch3.addConstraint(Sketcher.Constraint("Equal", 22, 24))
sketch3.addConstraint(Sketcher.Constraint("Equal", 23, 25))
sketch3.addConstraint(Sketcher.Constraint("Equal", 24, 26))
sketch3.addConstraint(Sketcher.Constraint("Equal", 25, 27))
sketch3.addConstraint(Sketcher.Constraint("Equal", 27, 29))
sketch3.addConstraint(Sketcher.Constraint("Equal", 28, 30))
sketch3.addConstraint(Sketcher.Constraint("Equal", 29, 31))
sketch3.addConstraint(Sketcher.Constraint("Equal", 30, 32))
sketch3.addConstraint(Sketcher.Constraint("Equal", 31, 33))
sketch3.addConstraint(Sketcher.Constraint("Equal", 32, 34))
sketch3.addConstraint(Sketcher.Constraint("Equal", 33, 35))
sketch3.addConstraint(Sketcher.Constraint("Equal", 34, 36))
sketch3.addConstraint(Sketcher.Constraint("Equal", 35, 37))
sketch3.addConstraint(Sketcher.Constraint("Equal", 36, 38))
sketch3.addConstraint(Sketcher.Constraint("Equal", 37, 39))
sketch3.addConstraint(Sketcher.Constraint("Equal", 38, 40))
sketch3.addConstraint(Sketcher.Constraint("Equal", 39, 41))
sketch3.addConstraint(Sketcher.Constraint("Equal", 40, 42))
sketch3.addConstraint(Sketcher.Constraint("Equal", 41, 43))
sketch3.addConstraint(Sketcher.Constraint("Equal", 42, 44))
sketch3.addConstraint(Sketcher.Constraint("Equal", 43, 45))
sketch3.addConstraint(Sketcher.Constraint("Equal", 44, 46))
sketch3.addConstraint(Sketcher.Constraint("Equal", 45, 47))
sketch3.addConstraint(Sketcher.Constraint("Equal", 46, 48))
sketch3.addConstraint(Sketcher.Constraint("Equal", 47, 49))
sketch3.addConstraint(Sketcher.Constraint("Equal", 48, 50))
sketch3.addConstraint(Sketcher.Constraint("Equal", 49, 51))
sketch3.addConstraint(Sketcher.Constraint("Equal", 50, 52))
sketch3.addConstraint(Sketcher.Constraint("Equal", 51, 53))
sketch3.addConstraint(Sketcher.Constraint("Equal", 52, 54))
sketch3.addConstraint(Sketcher.Constraint("Equal", 53, 55))
sketch3.addConstraint(Sketcher.Constraint("Symmetric", 1, 3, 15, 3, -1, 1))
sketch3.addConstraint(Sketcher.Constraint("Symmetric", 3, 3, 17, 3, -1, 1))
sketch3.addConstraint(Sketcher.Constraint("Symmetric", 5, 3, 19, 3, -1, 1))
sketch3.addConstraint(Sketcher.Constraint("Symmetric", 7, 3, 21, 3, -1, 1))
sketch3.addConstraint(Sketcher.Constraint("Symmetric", 9, 3, 23, 3, -1, 1))
sketch3.addConstraint(Sketcher.Constraint("Symmetric", 11, 3, 25, 3, -1, 1))
sketch3.addConstraint(Sketcher.Constraint("Symmetric", 13, 3, 27, 3, -1, 1))
sketch3.addConstraint(Sketcher.Constraint("Symmetric", 7, 3, 9, 3, -2))
sketch3.addConstraint(Sketcher.Constraint("Symmetric", 5, 3, 11, 3, -2))
sketch3.addConstraint(Sketcher.Constraint("Symmetric", 3, 3, 13, 3, -2))
sketch3.addConstraint(Sketcher.Constraint("PointOnObject", 1, 3, -1))
sketch3.addConstraint(Sketcher.Constraint("DistanceX", 1, 3, -1, 1, Q("4.5 mm")))
sketch3.addConstraint(Sketcher.Constraint("Radius", 28, Q("4.229298 mm")))
sketch3.addConstraint(Sketcher.Constraint("Radius", 0, Q("4.362819 mm")))
sketch3.addConstraint(Sketcher.Constraint("DistanceY", 7, 2, -1, 1, Q("4.325002 mm")))
sketch3.addConstraint(Sketcher.Constraint("Radius", 1, Q("0.432643 mm")))
sketch3.addConstraint(Sketcher.Constraint("DistanceX", 3, 2, -1, 1, Q("3.738802 mm")))
sketch3.addConstraint(Sketcher.Constraint("DistanceX", 3, 3, -1, 1, Q("4.05436 mm")))
sketch3.addConstraint(Sketcher.Constraint("DistanceY", 5, 3, -1, 1, Q("3.518242 mm")))
sketch3.addConstraint(Sketcher.Constraint("DistanceX", 6, 2, -1, 1, Q("1.36012 mm")))
sketch3.addConstraint(Sketcher.Constraint("DistanceY", -1, 1, 30, 1, Q("3.092861 mm")))
pad2 = body.newObject("PartDesign::Pad", "Pad001")
pad2.Profile = sketch3
pad2.setExpression("Length", "Params.pad2_length")

doc.recompute()
